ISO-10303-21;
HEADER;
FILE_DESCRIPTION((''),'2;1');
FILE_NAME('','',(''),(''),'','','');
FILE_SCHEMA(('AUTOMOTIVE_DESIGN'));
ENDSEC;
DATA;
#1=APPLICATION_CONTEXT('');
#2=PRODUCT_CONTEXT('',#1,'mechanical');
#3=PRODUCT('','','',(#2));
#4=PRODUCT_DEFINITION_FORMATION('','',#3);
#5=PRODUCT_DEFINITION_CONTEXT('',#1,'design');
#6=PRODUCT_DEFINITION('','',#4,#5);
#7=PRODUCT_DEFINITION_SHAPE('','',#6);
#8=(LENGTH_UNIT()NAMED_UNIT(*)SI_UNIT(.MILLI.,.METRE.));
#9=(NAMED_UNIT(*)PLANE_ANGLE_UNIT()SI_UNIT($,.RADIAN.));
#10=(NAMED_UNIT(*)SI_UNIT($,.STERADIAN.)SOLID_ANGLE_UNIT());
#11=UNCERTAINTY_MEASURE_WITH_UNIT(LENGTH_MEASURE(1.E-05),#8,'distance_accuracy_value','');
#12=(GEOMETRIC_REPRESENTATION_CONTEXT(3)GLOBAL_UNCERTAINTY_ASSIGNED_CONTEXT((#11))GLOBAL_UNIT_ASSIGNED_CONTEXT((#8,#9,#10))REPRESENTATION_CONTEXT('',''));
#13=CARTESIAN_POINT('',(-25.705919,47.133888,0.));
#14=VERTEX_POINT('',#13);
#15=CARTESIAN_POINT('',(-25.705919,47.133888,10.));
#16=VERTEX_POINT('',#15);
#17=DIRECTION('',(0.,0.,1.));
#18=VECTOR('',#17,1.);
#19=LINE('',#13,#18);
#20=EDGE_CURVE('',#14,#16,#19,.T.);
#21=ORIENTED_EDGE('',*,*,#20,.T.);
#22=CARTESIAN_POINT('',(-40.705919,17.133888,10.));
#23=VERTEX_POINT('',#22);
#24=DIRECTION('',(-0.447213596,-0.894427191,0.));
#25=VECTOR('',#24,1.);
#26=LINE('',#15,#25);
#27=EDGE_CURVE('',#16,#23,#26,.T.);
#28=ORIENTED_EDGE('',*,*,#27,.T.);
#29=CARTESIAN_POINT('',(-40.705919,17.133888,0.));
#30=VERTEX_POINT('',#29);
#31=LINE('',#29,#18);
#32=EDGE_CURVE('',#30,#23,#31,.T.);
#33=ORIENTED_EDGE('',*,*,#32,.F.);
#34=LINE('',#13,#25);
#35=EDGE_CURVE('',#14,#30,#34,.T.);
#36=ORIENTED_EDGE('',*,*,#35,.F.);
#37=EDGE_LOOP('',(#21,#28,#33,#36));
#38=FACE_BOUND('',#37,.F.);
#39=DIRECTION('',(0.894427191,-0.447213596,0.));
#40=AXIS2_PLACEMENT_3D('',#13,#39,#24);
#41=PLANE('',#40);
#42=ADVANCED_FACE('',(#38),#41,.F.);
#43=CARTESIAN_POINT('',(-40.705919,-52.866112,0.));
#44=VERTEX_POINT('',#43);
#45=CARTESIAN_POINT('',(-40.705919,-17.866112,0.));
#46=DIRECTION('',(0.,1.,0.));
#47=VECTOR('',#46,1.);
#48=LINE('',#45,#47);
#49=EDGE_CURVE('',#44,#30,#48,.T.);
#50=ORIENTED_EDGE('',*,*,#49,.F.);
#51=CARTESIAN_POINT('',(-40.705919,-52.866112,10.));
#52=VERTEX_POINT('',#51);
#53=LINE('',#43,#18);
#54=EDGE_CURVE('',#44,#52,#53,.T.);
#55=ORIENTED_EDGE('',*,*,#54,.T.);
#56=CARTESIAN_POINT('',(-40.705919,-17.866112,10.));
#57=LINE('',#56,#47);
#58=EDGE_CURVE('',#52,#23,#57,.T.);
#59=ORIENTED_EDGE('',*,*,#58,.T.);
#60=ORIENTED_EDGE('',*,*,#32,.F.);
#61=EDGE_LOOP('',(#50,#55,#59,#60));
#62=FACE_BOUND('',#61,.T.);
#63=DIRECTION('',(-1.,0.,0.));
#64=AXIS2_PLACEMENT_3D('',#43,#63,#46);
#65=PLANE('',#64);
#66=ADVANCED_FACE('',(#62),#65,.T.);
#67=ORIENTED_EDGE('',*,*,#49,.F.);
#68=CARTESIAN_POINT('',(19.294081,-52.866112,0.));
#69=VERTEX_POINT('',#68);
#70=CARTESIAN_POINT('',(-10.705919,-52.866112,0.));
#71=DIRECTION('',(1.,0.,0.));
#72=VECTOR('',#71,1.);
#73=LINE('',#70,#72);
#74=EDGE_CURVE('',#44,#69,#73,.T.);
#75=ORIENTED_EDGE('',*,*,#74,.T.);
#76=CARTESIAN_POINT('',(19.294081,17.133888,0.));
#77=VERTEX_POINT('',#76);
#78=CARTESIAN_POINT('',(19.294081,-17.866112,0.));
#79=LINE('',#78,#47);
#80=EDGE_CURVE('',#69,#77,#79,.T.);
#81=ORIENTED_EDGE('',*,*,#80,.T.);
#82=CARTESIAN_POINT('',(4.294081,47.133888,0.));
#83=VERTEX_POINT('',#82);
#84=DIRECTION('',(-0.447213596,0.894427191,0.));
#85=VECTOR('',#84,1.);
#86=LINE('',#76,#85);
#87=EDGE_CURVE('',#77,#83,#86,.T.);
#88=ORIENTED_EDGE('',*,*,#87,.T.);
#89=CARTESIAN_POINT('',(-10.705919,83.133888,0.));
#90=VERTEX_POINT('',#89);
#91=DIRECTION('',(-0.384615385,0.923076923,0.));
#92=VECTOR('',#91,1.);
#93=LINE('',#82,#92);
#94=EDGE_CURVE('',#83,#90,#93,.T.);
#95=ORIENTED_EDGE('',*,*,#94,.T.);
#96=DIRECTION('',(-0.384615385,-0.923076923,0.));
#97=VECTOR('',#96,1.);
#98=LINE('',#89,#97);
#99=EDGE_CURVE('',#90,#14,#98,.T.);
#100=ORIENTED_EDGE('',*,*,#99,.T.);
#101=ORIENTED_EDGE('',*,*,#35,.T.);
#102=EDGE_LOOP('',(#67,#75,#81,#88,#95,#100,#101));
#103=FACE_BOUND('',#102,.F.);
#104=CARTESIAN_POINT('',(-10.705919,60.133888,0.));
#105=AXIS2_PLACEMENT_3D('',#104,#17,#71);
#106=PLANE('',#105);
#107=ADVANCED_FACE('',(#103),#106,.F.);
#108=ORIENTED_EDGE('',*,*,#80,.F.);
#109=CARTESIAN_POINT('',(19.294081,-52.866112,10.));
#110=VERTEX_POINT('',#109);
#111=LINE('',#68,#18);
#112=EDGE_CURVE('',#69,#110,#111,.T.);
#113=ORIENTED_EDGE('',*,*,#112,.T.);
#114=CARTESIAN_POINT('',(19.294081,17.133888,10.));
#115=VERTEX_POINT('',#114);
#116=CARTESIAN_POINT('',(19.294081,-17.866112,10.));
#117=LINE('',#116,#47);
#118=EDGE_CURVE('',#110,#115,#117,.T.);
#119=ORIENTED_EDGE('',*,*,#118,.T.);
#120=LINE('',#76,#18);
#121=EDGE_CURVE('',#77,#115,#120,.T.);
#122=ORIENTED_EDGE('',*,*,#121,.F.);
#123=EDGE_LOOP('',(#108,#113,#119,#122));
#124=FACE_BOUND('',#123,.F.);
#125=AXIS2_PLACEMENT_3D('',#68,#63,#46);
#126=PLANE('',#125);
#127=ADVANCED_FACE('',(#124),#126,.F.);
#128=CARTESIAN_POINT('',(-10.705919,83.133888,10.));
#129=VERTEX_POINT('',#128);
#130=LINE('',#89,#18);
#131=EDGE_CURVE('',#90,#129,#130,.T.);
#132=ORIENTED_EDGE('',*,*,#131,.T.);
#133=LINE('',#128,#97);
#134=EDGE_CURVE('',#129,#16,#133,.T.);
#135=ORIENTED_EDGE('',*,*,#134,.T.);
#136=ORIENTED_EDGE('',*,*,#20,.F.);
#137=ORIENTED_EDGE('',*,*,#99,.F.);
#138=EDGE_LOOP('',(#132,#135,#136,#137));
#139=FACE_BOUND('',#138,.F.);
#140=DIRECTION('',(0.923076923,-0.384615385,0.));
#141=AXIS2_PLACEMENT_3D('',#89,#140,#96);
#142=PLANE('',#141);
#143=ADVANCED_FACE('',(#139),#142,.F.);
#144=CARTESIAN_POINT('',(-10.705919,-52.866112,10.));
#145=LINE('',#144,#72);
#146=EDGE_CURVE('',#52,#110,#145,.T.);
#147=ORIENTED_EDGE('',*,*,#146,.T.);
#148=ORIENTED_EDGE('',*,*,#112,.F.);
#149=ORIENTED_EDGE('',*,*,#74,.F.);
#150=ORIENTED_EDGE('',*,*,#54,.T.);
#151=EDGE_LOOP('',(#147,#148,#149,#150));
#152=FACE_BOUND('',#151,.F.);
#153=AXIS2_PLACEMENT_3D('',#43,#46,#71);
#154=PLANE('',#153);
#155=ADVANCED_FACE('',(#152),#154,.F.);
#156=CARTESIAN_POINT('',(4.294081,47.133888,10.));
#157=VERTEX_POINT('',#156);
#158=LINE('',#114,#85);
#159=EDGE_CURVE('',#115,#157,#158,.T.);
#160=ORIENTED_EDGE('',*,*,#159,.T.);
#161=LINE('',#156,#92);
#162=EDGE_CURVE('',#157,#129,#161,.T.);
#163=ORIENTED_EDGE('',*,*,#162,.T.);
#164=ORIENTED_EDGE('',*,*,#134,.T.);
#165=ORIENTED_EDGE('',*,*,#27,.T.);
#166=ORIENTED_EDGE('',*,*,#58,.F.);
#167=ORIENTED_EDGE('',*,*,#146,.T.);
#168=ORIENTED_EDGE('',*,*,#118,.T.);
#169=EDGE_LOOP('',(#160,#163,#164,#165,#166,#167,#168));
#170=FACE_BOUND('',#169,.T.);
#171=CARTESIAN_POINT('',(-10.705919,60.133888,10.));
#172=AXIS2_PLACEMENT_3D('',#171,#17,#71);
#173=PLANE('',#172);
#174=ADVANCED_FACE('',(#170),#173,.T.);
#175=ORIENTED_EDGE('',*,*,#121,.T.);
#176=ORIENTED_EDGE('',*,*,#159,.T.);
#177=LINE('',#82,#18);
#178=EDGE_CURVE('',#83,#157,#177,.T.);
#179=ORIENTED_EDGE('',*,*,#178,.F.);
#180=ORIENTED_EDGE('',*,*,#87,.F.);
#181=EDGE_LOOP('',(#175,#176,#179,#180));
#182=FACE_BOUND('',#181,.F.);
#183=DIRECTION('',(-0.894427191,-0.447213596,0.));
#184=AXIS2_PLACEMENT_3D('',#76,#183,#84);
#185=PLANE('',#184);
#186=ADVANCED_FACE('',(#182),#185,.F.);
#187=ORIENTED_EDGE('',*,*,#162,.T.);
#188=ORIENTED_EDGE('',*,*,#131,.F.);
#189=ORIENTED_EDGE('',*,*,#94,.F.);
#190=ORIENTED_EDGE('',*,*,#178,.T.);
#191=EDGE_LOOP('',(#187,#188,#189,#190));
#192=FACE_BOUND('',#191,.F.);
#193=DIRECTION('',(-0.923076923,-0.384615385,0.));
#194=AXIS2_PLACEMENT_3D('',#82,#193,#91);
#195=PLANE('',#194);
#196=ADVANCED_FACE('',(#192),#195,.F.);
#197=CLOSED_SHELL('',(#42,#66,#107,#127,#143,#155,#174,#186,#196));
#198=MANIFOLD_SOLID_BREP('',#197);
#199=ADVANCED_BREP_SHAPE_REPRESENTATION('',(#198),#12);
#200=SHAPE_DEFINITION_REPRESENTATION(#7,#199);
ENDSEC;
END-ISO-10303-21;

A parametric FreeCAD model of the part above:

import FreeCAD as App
import Part
import Sketcher
Q = App.Units.Quantity

doc = App.newDocument("Part")
body = doc.addObject("PartDesign::Body", "Body")

# Sketch on XY plane
sketch1 = body.newObject("Sketcher::SketchObject", "Sketch")
sketch1.AttachmentSupport = (doc.getObject("XY_Plane"), [""])
sketch1.MapMode = "FlatFace"
sketch1.addGeometry(Part.LineSegment(App.Vector(-10.705919, 83.133888, 0), App.Vector(-25.705919, 47.133888, 0)), False)
sketch1.addGeometry(Part.LineSegment(App.Vector(-25.705919, 47.133888, 0), App.Vector(-40.705919, 17.133888, 0)), False)
sketch1.addGeometry(Part.LineSegment(App.Vector(-40.705919, 17.133888, 0), App.Vector(-40.705919, -52.866112, 0)), False)
sketch1.addGeometry(Part.LineSegment(App.Vector(-40.705919, -52.866112, 0), App.Vector(19.294081, -52.866112, 0)), False)
sketch1.addGeometry(Part.LineSegment(App.Vector(19.294081, -52.866112, 0), App.Vector(19.294081, 17.133888, 0)), False)
sketch1.addGeometry(Part.LineSegment(App.Vector(19.294081, 17.133888, 0), App.Vector(4.294081, 47.133888, 0)), False)
sketch1.addGeometry(Part.LineSegment(App.Vector(4.294081, 47.133888, 0), App.Vector(-10.705919, 83.133888, 0)), False)
sketch1.addConstraint(Sketcher.Constraint("Coincident", 0, 2, 1, 1))
sketch1.addConstraint(Sketcher.Constraint("Coincident", 1, 2, 2, 1))
sketch1.addConstraint(Sketcher.Constraint("Coincident", 2, 2, 3, 1))
sketch1.addConstraint(Sketcher.Constraint("Coincident", 3, 2, 4, 1))
sketch1.addConstraint(Sketcher.Constraint("Coincident", 4, 2, 5, 1))
sketch1.addConstraint(Sketcher.Constraint("Coincident", 5, 2, 6, 1))
sketch1.addConstraint(Sketcher.Constraint("Coincident", 6, 2, 0, 1))
sketch1.addConstraint(Sketcher.Constraint("Vertical", 2))
sketch1.addConstraint(Sketcher.Constraint("Horizontal", 3))
sketch1.addConstraint(Sketcher.Constraint("Vertical", 4))
sketch1.addConstraint(Sketcher.Constraint("Horizontal", 1, 2, 4, 2))
sketch1.addConstraint(Sketcher.Constraint("Horizontal", 0, 2, 5, 2))
sketch1.addConstraint(Sketcher.Constraint("Equal", 1, 5))
sketch1.addConstraint(Sketcher.Constraint("Equal", 0, 6))
sketch1.addConstraint(Sketcher.Constraint("DistanceX", 3, 1, 3, 2, Q("60 mm")))
sketch1.addConstraint(Sketcher.Constraint("DistanceY", 2, 2, 2, 1, Q("70 mm")))
sketch1.addConstraint(Sketcher.Constraint("Distance", 0, Q("39 mm")))
sketch1.addConstraint(Sketcher.Constraint("DistanceX", 1, 2, 0, 2, Q("15 mm")))
sketch1.addConstraint(Sketcher.Constraint("DistanceY", 1, 2, 0, 2, Q("30 mm")))
sketch1.addConstraint(Sketcher.Constraint("DistanceX", 0, 2, -1, 1, Q("25.705919 mm")))
sketch1.addConstraint(Sketcher.Constraint("DistanceY", -1, 1, 6, 2, Q("83.133888 mm")))
pad1 = body.newObject("PartDesign::Pad", "Pad")
pad1.Profile = sketch1
pad1.Length = 10

doc.recompute()
